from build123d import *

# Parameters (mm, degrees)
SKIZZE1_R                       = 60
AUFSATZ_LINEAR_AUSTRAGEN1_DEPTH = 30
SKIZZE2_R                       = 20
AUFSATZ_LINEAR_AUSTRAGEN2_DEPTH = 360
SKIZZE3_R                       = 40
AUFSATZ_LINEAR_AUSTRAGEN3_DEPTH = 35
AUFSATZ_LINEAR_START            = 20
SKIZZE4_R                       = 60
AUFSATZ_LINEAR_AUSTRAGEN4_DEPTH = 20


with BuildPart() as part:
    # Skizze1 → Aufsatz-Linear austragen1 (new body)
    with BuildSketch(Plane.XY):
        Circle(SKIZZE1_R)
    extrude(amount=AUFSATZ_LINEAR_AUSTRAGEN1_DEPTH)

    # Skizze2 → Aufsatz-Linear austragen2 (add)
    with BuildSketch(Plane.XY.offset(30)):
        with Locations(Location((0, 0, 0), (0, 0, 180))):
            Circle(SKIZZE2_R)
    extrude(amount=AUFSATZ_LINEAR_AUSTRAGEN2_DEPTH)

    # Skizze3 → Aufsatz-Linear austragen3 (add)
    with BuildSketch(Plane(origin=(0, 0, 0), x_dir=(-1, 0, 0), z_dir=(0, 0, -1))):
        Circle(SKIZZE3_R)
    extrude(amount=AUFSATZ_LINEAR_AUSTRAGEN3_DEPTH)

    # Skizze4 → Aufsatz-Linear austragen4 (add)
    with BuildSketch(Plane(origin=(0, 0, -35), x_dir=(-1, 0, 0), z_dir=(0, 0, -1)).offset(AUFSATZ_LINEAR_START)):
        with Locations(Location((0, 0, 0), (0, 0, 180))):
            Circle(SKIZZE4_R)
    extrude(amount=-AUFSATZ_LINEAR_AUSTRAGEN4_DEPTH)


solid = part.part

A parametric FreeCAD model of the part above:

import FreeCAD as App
import Part
import Sketcher

doc = App.newDocument("Part")
body = doc.addObject("PartDesign::Body", "Body")

sketch1 = body.newObject("Sketcher::SketchObject", "Sketch")
sketch1.AttachmentSupport = (doc.getObject("XY_Plane"), [""])
sketch1.MapMode = "FlatFace"
sketch1.addGeometry(Part.Circle(App.Vector(0, 0, 0), App.Vector(0, 0, 1), 60), False)
sketch1.addConstraint(Sketcher.Constraint("Coincident", 0, 3, -1, 1))
sketch1.addConstraint(Sketcher.Constraint("Diameter", 0, 120.0))
pad1 = body.newObject("PartDesign::Pad", "Pad")
pad1.Profile = sketch1
pad1.Length = 30

sketch2 = body.newObject("Sketcher::SketchObject", "Sketch001")
sketch2.AttachmentSupport = (doc.getObject("XY_Plane"), [""])
sketch2.MapMode = "FlatFace"
sketch2.AttachmentOffset = App.Placement(App.Vector(0, 0, 30), App.Rotation())
sketch2.addGeometry(Part.Circle(App.Vector(0, 0, 0), App.Vector(0, 0, 1), 20), False)
sketch2.addConstraint(Sketcher.Constraint("Coincident", 0, 3, -1, 1))
sketch2.addConstraint(Sketcher.Constraint("Diameter", 0, 40.0))
pad2 = body.newObject("PartDesign::Pad", "Pad001")
pad2.Profile = sketch2
pad2.Length = 360

sketch3 = body.newObject("Sketcher::SketchObject", "Sketch002")
sketch3.AttachmentSupport = (doc.getObject("XY_Plane"), [""])
sketch3.MapMode = "FlatFace"
sketch3.addGeometry(Part.Circle(App.Vector(0, 0, 0), App.Vector(0, 0, 1), 40), False)
sketch3.addConstraint(Sketcher.Constraint("Coincident", 0, 3, -1, 1))
sketch3.addConstraint(Sketcher.Constraint("Diameter", 0, 80.0))
pad3 = body.newObject("PartDesign::Pad", "Pad002")
pad3.Profile = sketch3
pad3.Length = 35
pad3.Reversed = True

sketch4 = body.newObject("Sketcher::SketchObject", "Sketch003")
sketch4.AttachmentSupport = (doc.getObject("XY_Plane"), [""])
sketch4.MapMode = "FlatFace"
sketch4.AttachmentOffset = App.Placement(App.Vector(0, 0, -55), App.Rotation())
sketch4.addGeometry(Part.Circle(App.Vector(0, 0, 0), App.Vector(0, 0, 1), 60), False)
sketch4.addConstraint(Sketcher.Constraint("Coincident", 0, 3, -1, 1))
sketch4.addConstraint(Sketcher.Constraint("Diameter", 0, 120.0))
pad4 = body.newObject("PartDesign::Pad", "Pad003")
pad4.Profile = sketch4
pad4.Length = 20

doc.recompute()
